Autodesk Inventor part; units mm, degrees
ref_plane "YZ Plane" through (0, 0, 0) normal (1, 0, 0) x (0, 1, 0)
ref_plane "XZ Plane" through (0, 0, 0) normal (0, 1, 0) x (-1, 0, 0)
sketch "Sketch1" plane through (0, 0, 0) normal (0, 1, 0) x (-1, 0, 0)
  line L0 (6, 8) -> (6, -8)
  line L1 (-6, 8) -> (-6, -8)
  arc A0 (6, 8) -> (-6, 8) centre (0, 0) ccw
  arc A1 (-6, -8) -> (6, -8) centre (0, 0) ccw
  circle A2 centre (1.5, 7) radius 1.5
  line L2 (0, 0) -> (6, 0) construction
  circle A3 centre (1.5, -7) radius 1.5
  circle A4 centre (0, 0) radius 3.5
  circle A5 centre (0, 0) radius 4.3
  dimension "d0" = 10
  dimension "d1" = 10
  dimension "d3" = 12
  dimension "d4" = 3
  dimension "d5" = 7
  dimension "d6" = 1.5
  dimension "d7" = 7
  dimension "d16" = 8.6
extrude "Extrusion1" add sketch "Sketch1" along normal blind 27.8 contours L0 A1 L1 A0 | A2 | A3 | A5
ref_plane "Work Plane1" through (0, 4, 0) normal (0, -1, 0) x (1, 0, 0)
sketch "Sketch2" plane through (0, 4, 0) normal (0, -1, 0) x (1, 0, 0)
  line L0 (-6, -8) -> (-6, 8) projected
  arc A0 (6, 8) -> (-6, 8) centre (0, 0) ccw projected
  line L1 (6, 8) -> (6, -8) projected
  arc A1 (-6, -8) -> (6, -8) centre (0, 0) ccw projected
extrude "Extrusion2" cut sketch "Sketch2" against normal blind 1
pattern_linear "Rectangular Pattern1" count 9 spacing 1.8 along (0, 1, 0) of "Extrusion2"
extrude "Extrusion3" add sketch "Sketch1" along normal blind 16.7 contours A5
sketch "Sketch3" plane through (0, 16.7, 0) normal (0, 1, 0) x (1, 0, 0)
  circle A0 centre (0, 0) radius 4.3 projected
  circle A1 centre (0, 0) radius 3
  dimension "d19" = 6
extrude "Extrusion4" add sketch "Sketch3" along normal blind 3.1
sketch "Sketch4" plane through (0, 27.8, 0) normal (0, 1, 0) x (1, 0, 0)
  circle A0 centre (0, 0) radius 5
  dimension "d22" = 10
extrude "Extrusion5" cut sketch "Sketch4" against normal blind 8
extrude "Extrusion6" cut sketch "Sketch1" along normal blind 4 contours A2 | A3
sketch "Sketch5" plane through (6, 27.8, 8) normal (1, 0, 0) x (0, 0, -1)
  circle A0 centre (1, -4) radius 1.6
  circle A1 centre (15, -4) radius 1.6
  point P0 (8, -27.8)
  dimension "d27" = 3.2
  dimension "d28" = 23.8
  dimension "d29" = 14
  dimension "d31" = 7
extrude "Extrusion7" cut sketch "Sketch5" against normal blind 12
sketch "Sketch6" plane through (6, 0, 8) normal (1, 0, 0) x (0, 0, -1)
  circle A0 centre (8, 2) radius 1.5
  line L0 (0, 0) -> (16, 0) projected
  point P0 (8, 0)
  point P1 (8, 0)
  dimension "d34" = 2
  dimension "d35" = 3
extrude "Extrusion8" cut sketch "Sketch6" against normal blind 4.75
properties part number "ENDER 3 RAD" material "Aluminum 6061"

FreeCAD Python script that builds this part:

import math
import FreeCAD as App
import Part
import Sketcher
Q = App.Units.Quantity

doc = App.newDocument("Part")
params = doc.addObject("Spreadsheet::Sheet", "Params")
for row, (alias, value) in enumerate([
    ("sketch1_diameter", "7 mm"),
    ("sketch1_radius", "10 mm"),
    ("pad1_length", "27.8 mm"),
    ("sketch2_radius", "10 mm"),
    ("sketch2_height", "16 mm"),
    ("pocket1_length", "1 mm"),
    ("linearpattern_pitch", "1.8 mm"),
    ("sketch3_diameter", "7 mm"),
    ("sketch3_diameter2", "8.6 mm"),
    ("pad2_length", "16.7 mm"),
    ("sketch4_diameter", "6 mm"),
    ("sketch4_diameter2", "8.6 mm"),
    ("pad3_length", "3.1 mm"),
    ("sketch5_diameter", "10 mm"),
    ("pocket2_length", "8 mm"),
    ("sketch6_diameter", "3 mm"),
    ("pocket3_length", "4 mm"),
    ("sketch7_diameter", "3.2 mm"),
    ("pocket4_length", "12 mm"),
    ("sketch8_diameter", "3 mm"),
    ("pocket5_length", "4.75 mm"),
], start=1):
    params.set(f"A{row}", alias)
    params.set(f"B{row}", "=" + value)
    params.setAlias(f"B{row}", alias)

body = doc.addObject("PartDesign::Body", "Body")
body.AllowCompound = True

sketch1 = body.newObject("Sketcher::SketchObject", "Sketch")
sketch1.AttachmentSupport = (doc.getObject("XZ_Plane"), [""])
sketch1.MapMode = "FlatFace"
sketch1.addGeometry(Part.LineSegment(App.Vector(-6, -8, 0), App.Vector(-6, 8, 0)), False)
sketch1.addGeometry(Part.ArcOfCircle(Part.Circle(App.Vector(0, 0, 0), App.Vector(0, 0, 1), 10), math.radians(53), math.radians(127)), False)
sketch1.addGeometry(Part.LineSegment(App.Vector(6, 8, 0), App.Vector(6, -8, 0)), False)
sketch1.addGeometry(Part.ArcOfCircle(Part.Circle(App.Vector(0, 0, 0), App.Vector(0, 0, 1), 10), math.radians(-127), math.radians(-53)), False)
sketch1.addGeometry(Part.Circle(App.Vector(0, 0, 0), App.Vector(0, 0, 1), 3.5), False)
sketch1.addConstraint(Sketcher.Constraint("Coincident", 0, 2, 1, 2))
sketch1.addConstraint(Sketcher.Constraint("Coincident", 1, 1, 2, 1))
sketch1.addConstraint(Sketcher.Constraint("Coincident", 2, 2, 3, 2))
sketch1.addConstraint(Sketcher.Constraint("Coincident", 3, 1, 0, 1))
sketch1.addConstraint(Sketcher.Constraint("Vertical", 0))
sketch1.addConstraint(Sketcher.Constraint("Vertical", 2))
sketch1.addConstraint(Sketcher.Constraint("Coincident", 1, 3, -1, 1))
sketch1.addConstraint(Sketcher.Constraint("Coincident", 3, 3, -1, 1))
sketch1.addConstraint(Sketcher.Constraint("Coincident", 4, 3, -1, 1))
sketch1.addConstraint(Sketcher.Constraint("Equal", 1, 3))
sketch1.addConstraint(Sketcher.Constraint("Horizontal", 0, 2, 1, 1))
sketch1.addConstraint(Sketcher.Constraint("Diameter", 4, Q("7 mm")))
sketch1.addConstraint(Sketcher.Constraint("Radius", 1, Q("10 mm")))
sketch1.addConstraint(Sketcher.Constraint("DistanceX", 0, 2, 1, 1, Q("12 mm")))
sketch1.setExpression("Constraints[11]", "Params.sketch1_diameter")
sketch1.setExpression("Constraints[12]", "Params.sketch1_radius")
pad1 = body.newObject("PartDesign::Pad", "Pad")
pad1.Profile = sketch1
pad1.setExpression("Length", "Params.pad1_length")
pad1.Reversed = True

sketch2 = body.newObject("Sketcher::SketchObject", "Sketch001")
sketch2.AttachmentSupport = (doc.getObject("XZ_Plane"), [""])
sketch2.MapMode = "FlatFace"
sketch2.AttachmentOffset = App.Placement(App.Vector(0, 0, -4), App.Rotation())
sketch2.addGeometry(Part.LineSegment(App.Vector(-6, 8, 0), App.Vector(-6, -8, 0)), False)
sketch2.addGeometry(Part.ArcOfCircle(Part.Circle(App.Vector(0, 0, 0), App.Vector(0, 0, 1), 10), math.radians(-127), math.radians(-53)), False)
sketch2.addGeometry(Part.LineSegment(App.Vector(6, -8, 0), App.Vector(6, 8, 0)), False)
sketch2.addGeometry(Part.ArcOfCircle(Part.Circle(App.Vector(0, 0, 0), App.Vector(0, 0, 1), 10), math.radians(53), math.radians(127)), False)
sketch2.addConstraint(Sketcher.Constraint("Coincident", 0, 2, 1, 1))
sketch2.addConstraint(Sketcher.Constraint("Coincident", 1, 2, 2, 1))
sketch2.addConstraint(Sketcher.Constraint("Coincident", 2, 2, 3, 1))
sketch2.addConstraint(Sketcher.Constraint("Coincident", 3, 2, 0, 1))
sketch2.addConstraint(Sketcher.Constraint("Vertical", 0))
sketch2.addConstraint(Sketcher.Constraint("Vertical", 2))
sketch2.addConstraint(Sketcher.Constraint("Coincident", 1, 3, -1, 1))
sketch2.addConstraint(Sketcher.Constraint("Coincident", 3, 3, -1, 1))
sketch2.addConstraint(Sketcher.Constraint("Equal", 1, 3))
sketch2.addConstraint(Sketcher.Constraint("Horizontal", 0, 2, 1, 2))
sketch2.addConstraint(Sketcher.Constraint("Radius", 1, Q("10 mm")))
sketch2.addConstraint(Sketcher.Constraint("DistanceY", 0, 2, 0, 1, Q("16 mm")))
sketch2.setExpression("Constraints[10]", "Params.sketch2_radius")
sketch2.setExpression("Constraints[11]", "Params.sketch2_height")
pocket1 = body.newObject("PartDesign::Pocket", "Pocket")
pocket1.Profile = sketch2
pocket1.setExpression("Length", "Params.pocket1_length")
doc.recompute()

linearpattern = body.newObject("PartDesign::LinearPattern", "LinearPattern")
linearpattern.Originals = [pocket1]
linearpattern.Direction = (doc.getObject("Y_Axis"), [""])
linearpattern.Mode = "offset"
linearpattern.setExpression("Offset", "Params.linearpattern_pitch")
linearpattern.Occurrences = 9
body.Tip = linearpattern

sketch3 = body.newObject("Sketcher::SketchObject", "Sketch002")
sketch3.AttachmentSupport = (doc.getObject("XZ_Plane"), [""])
sketch3.MapMode = "FlatFace"
sketch3.addGeometry(Part.Circle(App.Vector(0, 0, 0), App.Vector(0, 0, 1), 4.3), False)
sketch3.addGeometry(Part.Circle(App.Vector(0, 0, 0), App.Vector(0, 0, 1), 3.5), False)
sketch3.addConstraint(Sketcher.Constraint("Coincident", 0, 3, -1, 1))
sketch3.addConstraint(Sketcher.Constraint("Coincident", 1, 3, -1, 1))
sketch3.addConstraint(Sketcher.Constraint("Diameter", 1, Q("7 mm")))
sketch3.addConstraint(Sketcher.Constraint("Diameter", 0, Q("8.6 mm")))
sketch3.setExpression("Constraints[2]", "Params.sketch3_diameter")
sketch3.setExpression("Constraints[3]", "Params.sketch3_diameter2")
pad2 = body.newObject("PartDesign::Pad", "Pad001")
pad2.Profile = sketch3
pad2.setExpression("Length", "Params.pad2_length")
pad2.Reversed = True

sketch4 = body.newObject("Sketcher::SketchObject", "Sketch003")
sketch4.AttachmentSupport = (doc.getObject("XZ_Plane"), [""])
sketch4.MapMode = "FlatFace"
sketch4.AttachmentOffset = App.Placement(App.Vector(0, 0, -16.7), App.Rotation())
sketch4.addGeometry(Part.Circle(App.Vector(0, 0, 0), App.Vector(0, 0, 1), 4.3), False)
sketch4.addGeometry(Part.Circle(App.Vector(0, 0, 0), App.Vector(0, 0, 1), 3), False)
sketch4.addConstraint(Sketcher.Constraint("Coincident", 0, 3, -1, 1))
sketch4.addConstraint(Sketcher.Constraint("Coincident", 1, 3, -1, 1))
sketch4.addConstraint(Sketcher.Constraint("Diameter", 1, Q("6 mm")))
sketch4.addConstraint(Sketcher.Constraint("Diameter", 0, Q("8.6 mm")))
sketch4.setExpression("Constraints[2]", "Params.sketch4_diameter")
sketch4.setExpression("Constraints[3]", "Params.sketch4_diameter2")
pad3 = body.newObject("PartDesign::Pad", "Pad002")
pad3.Profile = sketch4
pad3.setExpression("Length", "Params.pad3_length")
pad3.Reversed = True

sketch5 = body.newObject("Sketcher::SketchObject", "Sketch004")
sketch5.AttachmentSupport = (doc.getObject("XZ_Plane"), [""])
sketch5.MapMode = "FlatFace"
sketch5.AttachmentOffset = App.Placement(App.Vector(0, 0, -27.8), App.Rotation())
sketch5.addGeometry(Part.Circle(App.Vector(0, 0, 0), App.Vector(0, 0, 1), 5), False)
sketch5.addConstraint(Sketcher.Constraint("Coincident", 0, 3, -1, 1))
sketch5.addConstraint(Sketcher.Constraint("Diameter", 0, Q("10 mm")))
sketch5.setExpression("Constraints[1]", "Params.sketch5_diameter")
pocket2 = body.newObject("PartDesign::Pocket", "Pocket001")
pocket2.Profile = sketch5
pocket2.setExpression("Length", "Params.pocket2_length")
pocket2.Reversed = True

sketch6 = body.newObject("Sketcher::SketchObject", "Sketch005")
sketch6.AttachmentSupport = (doc.getObject("XZ_Plane"), [""])
sketch6.MapMode = "FlatFace"
sketch6.addGeometry(Part.Circle(App.Vector(-1.5, 7, 0), App.Vector(0, 0, 1), 1.5), False)
sketch6.addGeometry(Part.Circle(App.Vector(-1.5, -7, 0), App.Vector(0, 0, 1), 1.5), False)
sketch6.addConstraint(Sketcher.Constraint("Equal", 0, 1))
sketch6.addConstraint(Sketcher.Constraint("Symmetric", 0, 3, 1, 3, -1))
sketch6.addConstraint(Sketcher.Constraint("Diameter", 0, Q("3 mm")))
sketch6.addConstraint(Sketcher.Constraint("DistanceY", -1, 1, 0, 3, Q("7 mm")))
sketch6.addConstraint(Sketcher.Constraint("DistanceX", 0, 3, -1, 1, Q("1.5 mm")))
sketch6.setExpression("Constraints[2]", "Params.sketch6_diameter")
pocket3 = body.newObject("PartDesign::Pocket", "Pocket002")
pocket3.Profile = sketch6
pocket3.setExpression("Length", "Params.pocket3_length")

sketch7 = body.newObject("Sketcher::SketchObject", "Sketch006")
sketch7.AttachmentSupport = (doc.getObject("YZ_Plane"), [""])
sketch7.MapMode = "FlatFace"
sketch7.AttachmentOffset = App.Placement(App.Vector(0, 0, 6), App.Rotation())
sketch7.addGeometry(Part.Circle(App.Vector(23.8, 7, 0), App.Vector(0, 0, 1), 1.6), False)
sketch7.addGeometry(Part.Circle(App.Vector(23.8, -7, 0), App.Vector(0, 0, 1), 1.6), False)
sketch7.addConstraint(Sketcher.Constraint("Equal", 0, 1))
sketch7.addConstraint(Sketcher.Constraint("Symmetric", 0, 3, 1, 3, -1))
sketch7.addConstraint(Sketcher.Constraint("Diameter", 0, Q("3.2 mm")))
sketch7.addConstraint(Sketcher.Constraint("DistanceY", -1, 1, 0, 3, Q("7 mm")))
sketch7.addConstraint(Sketcher.Constraint("DistanceX", -1, 1, 0, 3, Q("23.8 mm")))
sketch7.setExpression("Constraints[2]", "Params.sketch7_diameter")
pocket4 = body.newObject("PartDesign::Pocket", "Pocket003")
pocket4.Profile = sketch7
pocket4.setExpression("Length", "Params.pocket4_length")

sketch8 = body.newObject("Sketcher::SketchObject", "Sketch007")
sketch8.AttachmentSupport = (doc.getObject("YZ_Plane"), [""])
sketch8.MapMode = "FlatFace"
sketch8.AttachmentOffset = App.Placement(App.Vector(0, 0, 6), App.Rotation())
sketch8.addGeometry(Part.Circle(App.Vector(2, 0, 0), App.Vector(0, 0, 1), 1.5), False)
sketch8.addConstraint(Sketcher.Constraint("PointOnObject", 0, 3, -1))
sketch8.addConstraint(Sketcher.Constraint("Diameter", 0, Q("3 mm")))
sketch8.addConstraint(Sketcher.Constraint("DistanceX", -1, 1, 0, 3, Q("2 mm")))
sketch8.setExpression("Constraints[1]", "Params.sketch8_diameter")
pocket5 = body.newObject("PartDesign::Pocket", "Pocket004")
pocket5.Profile = sketch8
pocket5.setExpression("Length", "Params.pocket5_length")

doc.recompute()
